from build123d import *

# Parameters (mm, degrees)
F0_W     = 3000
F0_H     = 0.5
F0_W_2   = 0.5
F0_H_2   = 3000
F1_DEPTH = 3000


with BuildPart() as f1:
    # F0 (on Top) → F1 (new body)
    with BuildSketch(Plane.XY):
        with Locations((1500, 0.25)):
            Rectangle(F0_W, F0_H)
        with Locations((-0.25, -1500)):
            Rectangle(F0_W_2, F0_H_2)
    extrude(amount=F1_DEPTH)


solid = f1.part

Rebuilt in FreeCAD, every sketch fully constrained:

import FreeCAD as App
import Part
import Sketcher


def add_polygon(sketch, points):
    """Adds a closed chain of lines whose ends are joined by coincident constraints."""
    first, n = sketch.GeometryCount, len(points)
    for a, b in zip(points, points[1:] + points[:1]):
        sketch.addGeometry(Part.LineSegment(App.Vector(*a, 0), App.Vector(*b, 0)), False)
    for i in range(n):
        sketch.addConstraint(Sketcher.Constraint("Coincident", first + i, 2, first + (i + 1) % n, 1))

doc = App.newDocument("Part")
body = doc.addObject("PartDesign::Body", "Body")
body.AllowCompound = True

# Sketch on XY plane
sketch1 = doc.addObject("Sketcher::SketchObject", "Sketch")
body.addObject(sketch1)
sketch1.AttachmentSupport = (doc.XY_Plane, [""])
sketch1.MapMode = "FlatFace"
add_polygon(sketch1, [(0, 0.5), (0, 0), (3000, 0), (3000, 0.5)])  # lines 0-3
add_polygon(sketch1, [(-0.5, 0), (-0.5, -3000), (0, -3000), (0, 0)])  # lines 4-7
sketch1.addConstraint(Sketcher.Constraint("Vertical", 0))
sketch1.addConstraint(Sketcher.Constraint("Horizontal", 1))
sketch1.addConstraint(Sketcher.Constraint("Vertical", 2))
sketch1.addConstraint(Sketcher.Constraint("Horizontal", 3))
sketch1.addConstraint(Sketcher.Constraint("Vertical", 4))
sketch1.addConstraint(Sketcher.Constraint("Horizontal", 5))
sketch1.addConstraint(Sketcher.Constraint("Vertical", 6))
sketch1.addConstraint(Sketcher.Constraint("Horizontal", 7))
sketch1.addConstraint(Sketcher.Constraint("Coincident", 0, 2, -1, 1))
sketch1.addConstraint(Sketcher.Constraint("Coincident", 6, 2, -1, 1))
sketch1.addConstraint(Sketcher.Constraint("Equal", 7, 0))
sketch1.addConstraint(Sketcher.Constraint("Equal", 3, 4))
sketch1.addConstraint(Sketcher.Constraint("DistanceX", 1, 1, 1, 2, 3000.0))
sketch1.addConstraint(Sketcher.Constraint("DistanceX", 5, 1, 5, 2, 0.5))
pad1 = doc.addObject("PartDesign::Pad", "Pad")
body.addObject(pad1)
pad1.Profile = sketch1
pad1.Length = 3000

doc.recompute()
